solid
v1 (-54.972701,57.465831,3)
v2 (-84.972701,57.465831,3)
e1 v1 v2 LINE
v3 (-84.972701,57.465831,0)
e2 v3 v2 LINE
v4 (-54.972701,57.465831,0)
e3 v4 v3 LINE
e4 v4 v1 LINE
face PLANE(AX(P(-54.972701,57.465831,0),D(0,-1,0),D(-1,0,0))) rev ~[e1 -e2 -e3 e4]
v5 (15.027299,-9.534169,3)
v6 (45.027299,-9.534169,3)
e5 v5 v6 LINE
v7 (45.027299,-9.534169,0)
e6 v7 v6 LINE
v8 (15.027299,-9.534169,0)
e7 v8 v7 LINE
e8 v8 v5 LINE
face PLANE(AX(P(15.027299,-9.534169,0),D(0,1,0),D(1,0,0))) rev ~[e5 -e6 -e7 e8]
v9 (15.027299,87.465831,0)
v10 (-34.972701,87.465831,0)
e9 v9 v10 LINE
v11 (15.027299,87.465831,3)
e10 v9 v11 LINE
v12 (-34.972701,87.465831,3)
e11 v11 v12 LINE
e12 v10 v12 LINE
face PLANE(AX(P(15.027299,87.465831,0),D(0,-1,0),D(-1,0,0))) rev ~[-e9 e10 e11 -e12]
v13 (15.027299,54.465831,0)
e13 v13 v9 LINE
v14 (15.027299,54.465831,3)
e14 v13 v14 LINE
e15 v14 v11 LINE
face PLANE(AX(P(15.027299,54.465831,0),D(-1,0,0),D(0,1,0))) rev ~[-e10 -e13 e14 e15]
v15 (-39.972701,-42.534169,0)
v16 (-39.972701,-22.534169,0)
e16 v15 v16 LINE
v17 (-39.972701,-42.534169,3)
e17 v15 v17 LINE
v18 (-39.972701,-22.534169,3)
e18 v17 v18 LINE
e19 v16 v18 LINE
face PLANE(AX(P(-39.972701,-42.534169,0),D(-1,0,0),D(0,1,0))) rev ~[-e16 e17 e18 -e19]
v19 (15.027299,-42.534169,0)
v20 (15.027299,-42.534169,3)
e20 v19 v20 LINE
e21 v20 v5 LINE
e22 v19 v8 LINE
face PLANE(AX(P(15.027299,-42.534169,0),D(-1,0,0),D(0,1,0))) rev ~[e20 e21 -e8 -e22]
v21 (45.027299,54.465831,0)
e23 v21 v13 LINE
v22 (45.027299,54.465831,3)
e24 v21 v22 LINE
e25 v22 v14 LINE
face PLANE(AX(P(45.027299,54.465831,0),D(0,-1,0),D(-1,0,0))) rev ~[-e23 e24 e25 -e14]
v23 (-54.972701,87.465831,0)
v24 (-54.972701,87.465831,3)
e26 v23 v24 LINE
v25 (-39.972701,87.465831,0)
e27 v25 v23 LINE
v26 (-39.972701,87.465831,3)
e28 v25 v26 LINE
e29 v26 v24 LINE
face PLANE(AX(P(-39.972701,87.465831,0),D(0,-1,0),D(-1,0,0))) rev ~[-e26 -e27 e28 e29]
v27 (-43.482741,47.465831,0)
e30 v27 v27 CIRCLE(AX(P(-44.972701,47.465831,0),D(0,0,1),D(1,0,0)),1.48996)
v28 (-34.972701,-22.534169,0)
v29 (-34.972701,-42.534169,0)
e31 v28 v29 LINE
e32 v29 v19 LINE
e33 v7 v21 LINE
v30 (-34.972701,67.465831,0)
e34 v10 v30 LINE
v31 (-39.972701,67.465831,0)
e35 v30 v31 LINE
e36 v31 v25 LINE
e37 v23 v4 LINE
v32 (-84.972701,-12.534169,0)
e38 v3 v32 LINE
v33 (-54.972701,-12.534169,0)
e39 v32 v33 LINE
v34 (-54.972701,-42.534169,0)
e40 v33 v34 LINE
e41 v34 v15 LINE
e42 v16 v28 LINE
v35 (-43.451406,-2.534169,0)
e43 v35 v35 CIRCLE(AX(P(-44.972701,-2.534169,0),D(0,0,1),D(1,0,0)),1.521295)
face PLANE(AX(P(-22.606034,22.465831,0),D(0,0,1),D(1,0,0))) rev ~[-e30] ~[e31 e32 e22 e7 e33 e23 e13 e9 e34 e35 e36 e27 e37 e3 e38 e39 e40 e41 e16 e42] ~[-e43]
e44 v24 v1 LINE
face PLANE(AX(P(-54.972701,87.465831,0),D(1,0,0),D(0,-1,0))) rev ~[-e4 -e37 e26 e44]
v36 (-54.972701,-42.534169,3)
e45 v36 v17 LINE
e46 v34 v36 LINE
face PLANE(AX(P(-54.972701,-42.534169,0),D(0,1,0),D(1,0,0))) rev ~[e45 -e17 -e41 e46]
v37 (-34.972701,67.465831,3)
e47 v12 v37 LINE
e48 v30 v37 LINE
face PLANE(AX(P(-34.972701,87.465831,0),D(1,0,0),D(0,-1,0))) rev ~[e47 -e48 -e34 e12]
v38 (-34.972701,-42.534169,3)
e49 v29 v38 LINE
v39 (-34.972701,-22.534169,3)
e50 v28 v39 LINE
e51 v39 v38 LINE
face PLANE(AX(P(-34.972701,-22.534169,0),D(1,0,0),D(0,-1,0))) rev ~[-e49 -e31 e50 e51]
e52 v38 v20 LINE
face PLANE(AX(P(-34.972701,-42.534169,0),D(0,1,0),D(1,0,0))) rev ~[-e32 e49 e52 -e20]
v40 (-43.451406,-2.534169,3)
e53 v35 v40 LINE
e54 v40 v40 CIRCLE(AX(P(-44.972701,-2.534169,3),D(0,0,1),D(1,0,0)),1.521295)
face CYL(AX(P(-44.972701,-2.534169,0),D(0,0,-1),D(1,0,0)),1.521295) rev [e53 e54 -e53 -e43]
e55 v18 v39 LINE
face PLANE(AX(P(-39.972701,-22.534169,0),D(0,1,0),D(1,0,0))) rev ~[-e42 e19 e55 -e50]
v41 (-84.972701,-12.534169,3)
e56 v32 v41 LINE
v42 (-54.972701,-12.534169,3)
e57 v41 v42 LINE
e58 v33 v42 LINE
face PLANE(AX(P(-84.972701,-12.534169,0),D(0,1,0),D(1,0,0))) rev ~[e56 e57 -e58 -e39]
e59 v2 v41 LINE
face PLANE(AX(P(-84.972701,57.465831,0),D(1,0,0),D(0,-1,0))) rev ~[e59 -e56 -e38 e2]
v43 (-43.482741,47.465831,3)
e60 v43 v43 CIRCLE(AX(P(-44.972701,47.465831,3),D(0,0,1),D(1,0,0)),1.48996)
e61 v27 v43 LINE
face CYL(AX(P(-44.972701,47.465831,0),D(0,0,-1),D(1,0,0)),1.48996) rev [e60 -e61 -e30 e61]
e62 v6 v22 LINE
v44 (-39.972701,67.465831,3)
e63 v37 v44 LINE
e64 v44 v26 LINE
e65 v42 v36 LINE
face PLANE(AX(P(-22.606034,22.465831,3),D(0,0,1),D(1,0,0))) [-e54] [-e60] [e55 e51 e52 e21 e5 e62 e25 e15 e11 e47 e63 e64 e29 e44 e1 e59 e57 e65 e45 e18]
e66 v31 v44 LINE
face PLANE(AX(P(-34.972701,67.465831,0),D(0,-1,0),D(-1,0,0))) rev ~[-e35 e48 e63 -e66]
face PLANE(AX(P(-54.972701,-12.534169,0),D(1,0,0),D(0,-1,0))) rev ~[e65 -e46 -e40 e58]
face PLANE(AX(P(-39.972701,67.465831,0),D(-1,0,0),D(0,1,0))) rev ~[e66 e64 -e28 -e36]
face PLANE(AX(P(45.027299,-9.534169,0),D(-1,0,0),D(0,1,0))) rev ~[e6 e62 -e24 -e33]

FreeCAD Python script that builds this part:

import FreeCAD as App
import Part
import Sketcher
Q = App.Units.Quantity

doc = App.newDocument("Part")
body = doc.addObject("PartDesign::Body", "Body")

sketch1 = body.newObject("Sketcher::SketchObject", "Sketch")
sketch1.AttachmentSupport = (doc.getObject("XY_Plane"), [""])
sketch1.MapMode = "FlatFace"
sketch1.addGeometry(Part.LineSegment(App.Vector(-40, 87.5, 0), App.Vector(-55, 87.5, 0)), False)
sketch1.addGeometry(Part.LineSegment(App.Vector(-55, 87.5, 0), App.Vector(-55, 57.5, 0)), False)
sketch1.addGeometry(Part.LineSegment(App.Vector(-55, 57.5, 0), App.Vector(-85, 57.5, 0)), False)
sketch1.addGeometry(Part.LineSegment(App.Vector(-85, 57.5, 0), App.Vector(-85, -12.5, 0)), False)
sketch1.addGeometry(Part.LineSegment(App.Vector(-85, -12.5, 0), App.Vector(-55, -12.5, 0)), False)
sketch1.addGeometry(Part.LineSegment(App.Vector(-55, -12.5, 0), App.Vector(-55, -42.5, 0)), False)
sketch1.addGeometry(Part.LineSegment(App.Vector(-55, -42.5, 0), App.Vector(-40, -42.5, 0)), False)
sketch1.addGeometry(Part.LineSegment(App.Vector(-40, -42.5, 0), App.Vector(-40, -22.5, 0)), False)
sketch1.addGeometry(Part.LineSegment(App.Vector(-40, -22.5, 0), App.Vector(-35, -22.5, 0)), False)
sketch1.addGeometry(Part.LineSegment(App.Vector(-35, -22.5, 0), App.Vector(-35, -42.5, 0)), False)
sketch1.addGeometry(Part.LineSegment(App.Vector(-35, -42.5, 0), App.Vector(15, -42.5, 0)), False)
sketch1.addGeometry(Part.LineSegment(App.Vector(15, -42.5, 0), App.Vector(15, -9.5, 0)), False)
sketch1.addGeometry(Part.LineSegment(App.Vector(15, -9.5, 0), App.Vector(45, -9.5, 0)), False)
sketch1.addGeometry(Part.LineSegment(App.Vector(45, -9.5, 0), App.Vector(45, 54.5, 0)), False)
sketch1.addGeometry(Part.LineSegment(App.Vector(45, 54.5, 0), App.Vector(15, 54.5, 0)), False)
sketch1.addGeometry(Part.LineSegment(App.Vector(15, 54.5, 0), App.Vector(15, 87.5, 0)), False)
sketch1.addGeometry(Part.LineSegment(App.Vector(15, 87.5, 0), App.Vector(-35, 87.5, 0)), False)
sketch1.addGeometry(Part.LineSegment(App.Vector(-35, 87.5, 0), App.Vector(-35, 67.5, 0)), False)
sketch1.addGeometry(Part.LineSegment(App.Vector(-35, 67.5, 0), App.Vector(-40, 67.5, 0)), False)
sketch1.addGeometry(Part.LineSegment(App.Vector(-40, 67.5, 0), App.Vector(-40, 87.5, 0)), False)
sketch1.addGeometry(Part.Circle(App.Vector(-45, -2.5, 0), App.Vector(0, 0, 1), 1.5), False)
sketch1.addGeometry(Part.Circle(App.Vector(-45, 47.5, 0), App.Vector(0, 0, 1), 1.5), False)
sketch1.addConstraint(Sketcher.Constraint("Coincident", 0, 2, 1, 1))
sketch1.addConstraint(Sketcher.Constraint("Coincident", 1, 2, 2, 1))
sketch1.addConstraint(Sketcher.Constraint("Coincident", 2, 2, 3, 1))
sketch1.addConstraint(Sketcher.Constraint("Coincident", 3, 2, 4, 1))
sketch1.addConstraint(Sketcher.Constraint("Coincident", 4, 2, 5, 1))
sketch1.addConstraint(Sketcher.Constraint("Coincident", 5, 2, 6, 1))
sketch1.addConstraint(Sketcher.Constraint("Coincident", 6, 2, 7, 1))
sketch1.addConstraint(Sketcher.Constraint("Coincident", 7, 2, 8, 1))
sketch1.addConstraint(Sketcher.Constraint("Coincident", 8, 2, 9, 1))
sketch1.addConstraint(Sketcher.Constraint("Coincident", 9, 2, 10, 1))
sketch1.addConstraint(Sketcher.Constraint("Coincident", 10, 2, 11, 1))
sketch1.addConstraint(Sketcher.Constraint("Coincident", 11, 2, 12, 1))
sketch1.addConstraint(Sketcher.Constraint("Coincident", 12, 2, 13, 1))
sketch1.addConstraint(Sketcher.Constraint("Coincident", 13, 2, 14, 1))
sketch1.addConstraint(Sketcher.Constraint("Coincident", 14, 2, 15, 1))
sketch1.addConstraint(Sketcher.Constraint("Coincident", 15, 2, 16, 1))
sketch1.addConstraint(Sketcher.Constraint("Coincident", 16, 2, 17, 1))
sketch1.addConstraint(Sketcher.Constraint("Coincident", 17, 2, 18, 1))
sketch1.addConstraint(Sketcher.Constraint("Coincident", 18, 2, 19, 1))
sketch1.addConstraint(Sketcher.Constraint("Coincident", 19, 2, 0, 1))
sketch1.addConstraint(Sketcher.Constraint("Horizontal", 0))
sketch1.addConstraint(Sketcher.Constraint("Vertical", 1))
sketch1.addConstraint(Sketcher.Constraint("Horizontal", 2))
sketch1.addConstraint(Sketcher.Constraint("Vertical", 3))
sketch1.addConstraint(Sketcher.Constraint("Horizontal", 4))
sketch1.addConstraint(Sketcher.Constraint("Vertical", 5))
sketch1.addConstraint(Sketcher.Constraint("Horizontal", 6))
sketch1.addConstraint(Sketcher.Constraint("Vertical", 7))
sketch1.addConstraint(Sketcher.Constraint("Horizontal", 8))
sketch1.addConstraint(Sketcher.Constraint("Vertical", 9))
sketch1.addConstraint(Sketcher.Constraint("Horizontal", 10))
sketch1.addConstraint(Sketcher.Constraint("Vertical", 11))
sketch1.addConstraint(Sketcher.Constraint("Horizontal", 12))
sketch1.addConstraint(Sketcher.Constraint("Vertical", 13))
sketch1.addConstraint(Sketcher.Constraint("Horizontal", 14))
sketch1.addConstraint(Sketcher.Constraint("Vertical", 15))
sketch1.addConstraint(Sketcher.Constraint("Horizontal", 16))
sketch1.addConstraint(Sketcher.Constraint("Vertical", 17))
sketch1.addConstraint(Sketcher.Constraint("Horizontal", 18))
sketch1.addConstraint(Sketcher.Constraint("Vertical", 19))
sketch1.addConstraint(Sketcher.Constraint("Horizontal", 6, 2, 9, 2))
sketch1.addConstraint(Sketcher.Constraint("Horizontal", 0, 2, 15, 2))
sketch1.addConstraint(Sketcher.Constraint("Vertical", 20, 3, 21, 3))
sketch1.addConstraint(Sketcher.Constraint("Vertical", 1, 2, 4, 2))
sketch1.addConstraint(Sketcher.Constraint("Vertical", 11, 2, 14, 2))
sketch1.addConstraint(Sketcher.Constraint("Vertical", 9, 2, 16, 2))
sketch1.addConstraint(Sketcher.Constraint("Vertical", 7, 2, 18, 2))
sketch1.addConstraint(Sketcher.Constraint("Equal", 4, 12))
sketch1.addConstraint(Sketcher.Constraint("Equal", 14, 1))
sketch1.addConstraint(Sketcher.Constraint("Equal", 1, 5))
sketch1.addConstraint(Sketcher.Constraint("Equal", 11, 15))
sketch1.addConstraint(Sketcher.Constraint("Equal", 9, 17))
sketch1.addConstraint(Sketcher.Constraint("DistanceX", 0, 2, 0, 1, Q("15 mm")))
sketch1.addConstraint(Sketcher.Constraint("DistanceX", 2, 2, 2, 1, Q("30 mm")))
sketch1.addConstraint(Sketcher.Constraint("DistanceX", 8, 1, 8, 2, Q("5 mm")))
sketch1.addConstraint(Sketcher.Constraint("DistanceX", 10, 1, 10, 2, Q("50 mm")))
sketch1.addConstraint(Sketcher.Constraint("DistanceY", 3, 2, 3, 1, Q("70 mm")))
sketch1.addConstraint(Sketcher.Constraint("DistanceY", 7, 1, 7, 2, Q("20 mm")))
sketch1.addConstraint(Sketcher.Constraint("DistanceY", 11, 1, 11, 2, Q("33 mm")))
sketch1.addConstraint(Sketcher.Constraint("DistanceY", 20, 3, 21, 3, Q("50 mm")))
sketch1.addConstraint(Sketcher.Constraint("DistanceX", 0, 2, 21, 3, Q("10 mm")))
sketch1.addConstraint(Sketcher.Constraint("DistanceY", 21, 3, 0, 2, Q("40 mm")))
sketch1.addConstraint(Sketcher.Constraint("Diameter", 20, Q("3.04259 mm")))
sketch1.addConstraint(Sketcher.Constraint("Diameter", 21, Q("2.97992 mm")))
sketch1.addConstraint(Sketcher.Constraint("DistanceX", 20, 3, -1, 1, Q("44.972701 mm")))
sketch1.addConstraint(Sketcher.Constraint("DistanceY", 20, 3, -1, 1, Q("2.534169 mm")))
pad1 = body.newObject("PartDesign::Pad", "Pad")
pad1.Profile = sketch1
pad1.Length = 3

doc.recompute()
